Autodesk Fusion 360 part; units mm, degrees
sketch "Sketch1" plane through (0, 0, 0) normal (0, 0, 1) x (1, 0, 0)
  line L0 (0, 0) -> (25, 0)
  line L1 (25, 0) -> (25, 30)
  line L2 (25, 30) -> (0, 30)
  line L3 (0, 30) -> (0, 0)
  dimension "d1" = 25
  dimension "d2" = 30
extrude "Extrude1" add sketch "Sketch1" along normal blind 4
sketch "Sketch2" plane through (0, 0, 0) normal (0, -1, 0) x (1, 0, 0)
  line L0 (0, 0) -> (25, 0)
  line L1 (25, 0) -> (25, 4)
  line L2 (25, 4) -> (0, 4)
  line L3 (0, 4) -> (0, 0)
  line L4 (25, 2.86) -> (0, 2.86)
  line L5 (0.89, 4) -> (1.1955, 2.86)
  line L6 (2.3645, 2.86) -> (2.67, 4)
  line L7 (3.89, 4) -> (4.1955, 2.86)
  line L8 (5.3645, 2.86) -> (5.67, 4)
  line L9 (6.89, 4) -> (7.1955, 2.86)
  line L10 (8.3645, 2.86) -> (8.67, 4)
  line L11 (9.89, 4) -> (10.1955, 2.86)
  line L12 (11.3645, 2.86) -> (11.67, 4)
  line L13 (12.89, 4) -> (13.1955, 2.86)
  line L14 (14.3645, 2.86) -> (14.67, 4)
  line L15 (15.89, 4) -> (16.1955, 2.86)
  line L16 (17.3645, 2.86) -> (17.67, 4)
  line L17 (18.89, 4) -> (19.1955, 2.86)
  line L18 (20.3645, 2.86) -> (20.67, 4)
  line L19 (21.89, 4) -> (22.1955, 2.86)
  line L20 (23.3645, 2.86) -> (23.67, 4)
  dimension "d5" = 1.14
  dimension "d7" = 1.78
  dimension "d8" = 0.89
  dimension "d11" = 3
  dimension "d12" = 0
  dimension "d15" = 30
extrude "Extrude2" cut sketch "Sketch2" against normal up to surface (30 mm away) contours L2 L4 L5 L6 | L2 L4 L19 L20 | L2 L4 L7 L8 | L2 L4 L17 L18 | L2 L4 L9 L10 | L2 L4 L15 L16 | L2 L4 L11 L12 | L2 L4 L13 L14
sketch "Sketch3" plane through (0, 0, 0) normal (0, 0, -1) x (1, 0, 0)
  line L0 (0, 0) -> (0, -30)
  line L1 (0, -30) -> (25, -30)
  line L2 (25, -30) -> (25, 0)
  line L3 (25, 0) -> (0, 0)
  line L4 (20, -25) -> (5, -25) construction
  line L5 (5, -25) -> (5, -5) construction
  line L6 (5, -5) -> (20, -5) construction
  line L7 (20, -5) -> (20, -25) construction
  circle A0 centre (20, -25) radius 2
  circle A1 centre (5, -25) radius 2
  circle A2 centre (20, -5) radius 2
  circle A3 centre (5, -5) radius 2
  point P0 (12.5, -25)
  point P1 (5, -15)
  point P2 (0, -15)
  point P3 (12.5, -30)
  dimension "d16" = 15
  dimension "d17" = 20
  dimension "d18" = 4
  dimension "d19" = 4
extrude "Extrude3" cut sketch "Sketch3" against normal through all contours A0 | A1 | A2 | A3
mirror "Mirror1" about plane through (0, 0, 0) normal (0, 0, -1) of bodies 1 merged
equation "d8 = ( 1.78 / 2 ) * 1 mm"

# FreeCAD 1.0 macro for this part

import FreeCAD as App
import Part
import Sketcher
from FreeCAD import Vector
Q = App.Units.Quantity

doc = App.newDocument("Part")
body = doc.addObject("PartDesign::Body", "Body")

sketch1 = doc.addObject("Sketcher::SketchObject", "Sketch")
body.addObject(sketch1)
sketch1.AttachmentSupport = (doc.XY_Plane, [""])
sketch1.MapMode = "FlatFace"
sketch1.addGeometry(Part.LineSegment(Vector(0, 30, 0), Vector(0, 0, 0)), False)
sketch1.addGeometry(Part.LineSegment(Vector(0, 0, 0), Vector(25, 0, 0)), False)
sketch1.addGeometry(Part.LineSegment(Vector(25, 0, 0), Vector(25, 30, 0)), False)
sketch1.addGeometry(Part.LineSegment(Vector(25, 30, 0), Vector(0, 30, 0)), False)
sketch1.addConstraint(Sketcher.Constraint("Coincident", 0, 2, 1, 1))
sketch1.addConstraint(Sketcher.Constraint("Coincident", 1, 2, 2, 1))
sketch1.addConstraint(Sketcher.Constraint("Coincident", 2, 2, 3, 1))
sketch1.addConstraint(Sketcher.Constraint("Coincident", 3, 2, 0, 1))
sketch1.addConstraint(Sketcher.Constraint("Vertical", 0))
sketch1.addConstraint(Sketcher.Constraint("Horizontal", 1))
sketch1.addConstraint(Sketcher.Constraint("Vertical", 2))
sketch1.addConstraint(Sketcher.Constraint("Horizontal", 3))
sketch1.addConstraint(Sketcher.Constraint("Coincident", 0, 2, -1, 1))
sketch1.addConstraint(Sketcher.Constraint("DistanceX", 1, 1, 1, 2, Q("25 mm")))
sketch1.addConstraint(Sketcher.Constraint("DistanceY", 0, 2, 0, 1, Q("30 mm")))
pad1 = doc.addObject("PartDesign::Pad", "Pad")
body.addObject(pad1)
pad1.Profile = sketch1
pad1.Length = 4

sketch2 = doc.addObject("Sketcher::SketchObject", "Sketch001")
body.addObject(sketch2)
sketch2.AttachmentSupport = (doc.XZ_Plane, [""])
sketch2.MapMode = "FlatFace"
sketch2.addGeometry(Part.LineSegment(Vector(0.9, 4, 0), Vector(1.2, 2.9, 0)), False)
sketch2.addGeometry(Part.LineSegment(Vector(1.2, 2.9, 0), Vector(2.4, 2.9, 0)), False)
sketch2.addGeometry(Part.LineSegment(Vector(2.4, 2.9, 0), Vector(2.7, 4, 0)), False)
sketch2.addGeometry(Part.LineSegment(Vector(2.7, 4, 0), Vector(0.9, 4, 0)), False)
sketch2.addGeometry(Part.LineSegment(Vector(22.2, 2.9, 0), Vector(23.4, 2.9, 0)), False)
sketch2.addGeometry(Part.LineSegment(Vector(23.4, 2.9, 0), Vector(23.7, 4, 0)), False)
sketch2.addGeometry(Part.LineSegment(Vector(23.7, 4, 0), Vector(21.9, 4, 0)), False)
sketch2.addGeometry(Part.LineSegment(Vector(21.9, 4, 0), Vector(22.2, 2.9, 0)), False)
sketch2.addGeometry(Part.LineSegment(Vector(3.9, 4, 0), Vector(4.2, 2.9, 0)), False)
sketch2.addGeometry(Part.LineSegment(Vector(4.2, 2.9, 0), Vector(5.4, 2.9, 0)), False)
sketch2.addGeometry(Part.LineSegment(Vector(5.4, 2.9, 0), Vector(5.7, 4, 0)), False)
sketch2.addGeometry(Part.LineSegment(Vector(5.7, 4, 0), Vector(3.9, 4, 0)), False)
sketch2.addGeometry(Part.LineSegment(Vector(19.2, 2.9, 0), Vector(20.4, 2.9, 0)), False)
sketch2.addGeometry(Part.LineSegment(Vector(20.4, 2.9, 0), Vector(20.7, 4, 0)), False)
sketch2.addGeometry(Part.LineSegment(Vector(20.7, 4, 0), Vector(18.9, 4, 0)), False)
sketch2.addGeometry(Part.LineSegment(Vector(18.9, 4, 0), Vector(19.2, 2.9, 0)), False)
sketch2.addGeometry(Part.LineSegment(Vector(6.9, 4, 0), Vector(7.2, 2.9, 0)), False)
sketch2.addGeometry(Part.LineSegment(Vector(7.2, 2.9, 0), Vector(8.4, 2.9, 0)), False)
sketch2.addGeometry(Part.LineSegment(Vector(8.4, 2.9, 0), Vector(8.7, 4, 0)), False)
sketch2.addGeometry(Part.LineSegment(Vector(8.7, 4, 0), Vector(6.9, 4, 0)), False)
sketch2.addGeometry(Part.LineSegment(Vector(16.2, 2.9, 0), Vector(17.4, 2.9, 0)), False)
sketch2.addGeometry(Part.LineSegment(Vector(17.4, 2.9, 0), Vector(17.7, 4, 0)), False)
sketch2.addGeometry(Part.LineSegment(Vector(17.7, 4, 0), Vector(15.9, 4, 0)), False)
sketch2.addGeometry(Part.LineSegment(Vector(15.9, 4, 0), Vector(16.2, 2.9, 0)), False)
sketch2.addGeometry(Part.LineSegment(Vector(9.9, 4, 0), Vector(10.2, 2.9, 0)), False)
sketch2.addGeometry(Part.LineSegment(Vector(10.2, 2.9, 0), Vector(11.4, 2.9, 0)), False)
sketch2.addGeometry(Part.LineSegment(Vector(11.4, 2.9, 0), Vector(11.7, 4, 0)), False)
sketch2.addGeometry(Part.LineSegment(Vector(11.7, 4, 0), Vector(9.9, 4, 0)), False)
sketch2.addGeometry(Part.LineSegment(Vector(13.2, 2.9, 0), Vector(14.4, 2.9, 0)), False)
sketch2.addGeometry(Part.LineSegment(Vector(14.4, 2.9, 0), Vector(14.7, 4, 0)), False)
sketch2.addGeometry(Part.LineSegment(Vector(14.7, 4, 0), Vector(12.9, 4, 0)), False)
sketch2.addGeometry(Part.LineSegment(Vector(12.9, 4, 0), Vector(13.2, 2.9, 0)), False)
sketch2.addConstraint(Sketcher.Constraint("Coincident", 0, 2, 1, 1))
sketch2.addConstraint(Sketcher.Constraint("Coincident", 1, 2, 2, 1))
sketch2.addConstraint(Sketcher.Constraint("Coincident", 2, 2, 3, 1))
sketch2.addConstraint(Sketcher.Constraint("Coincident", 3, 2, 0, 1))
sketch2.addConstraint(Sketcher.Constraint("Coincident", 4, 2, 5, 1))
sketch2.addConstraint(Sketcher.Constraint("Coincident", 5, 2, 6, 1))
sketch2.addConstraint(Sketcher.Constraint("Coincident", 6, 2, 7, 1))
sketch2.addConstraint(Sketcher.Constraint("Coincident", 7, 2, 4, 1))
sketch2.addConstraint(Sketcher.Constraint("Coincident", 8, 2, 9, 1))
sketch2.addConstraint(Sketcher.Constraint("Coincident", 9, 2, 10, 1))
sketch2.addConstraint(Sketcher.Constraint("Coincident", 10, 2, 11, 1))
sketch2.addConstraint(Sketcher.Constraint("Coincident", 11, 2, 8, 1))
sketch2.addConstraint(Sketcher.Constraint("Coincident", 12, 2, 13, 1))
sketch2.addConstraint(Sketcher.Constraint("Coincident", 13, 2, 14, 1))
sketch2.addConstraint(Sketcher.Constraint("Coincident", 14, 2, 15, 1))
sketch2.addConstraint(Sketcher.Constraint("Coincident", 15, 2, 12, 1))
sketch2.addConstraint(Sketcher.Constraint("Coincident", 16, 2, 17, 1))
sketch2.addConstraint(Sketcher.Constraint("Coincident", 17, 2, 18, 1))
sketch2.addConstraint(Sketcher.Constraint("Coincident", 18, 2, 19, 1))
sketch2.addConstraint(Sketcher.Constraint("Coincident", 19, 2, 16, 1))
sketch2.addConstraint(Sketcher.Constraint("Coincident", 20, 2, 21, 1))
sketch2.addConstraint(Sketcher.Constraint("Coincident", 21, 2, 22, 1))
sketch2.addConstraint(Sketcher.Constraint("Coincident", 22, 2, 23, 1))
sketch2.addConstraint(Sketcher.Constraint("Coincident", 23, 2, 20, 1))
sketch2.addConstraint(Sketcher.Constraint("Coincident", 24, 2, 25, 1))
sketch2.addConstraint(Sketcher.Constraint("Coincident", 25, 2, 26, 1))
sketch2.addConstraint(Sketcher.Constraint("Coincident", 26, 2, 27, 1))
sketch2.addConstraint(Sketcher.Constraint("Coincident", 27, 2, 24, 1))
sketch2.addConstraint(Sketcher.Constraint("Coincident", 28, 2, 29, 1))
sketch2.addConstraint(Sketcher.Constraint("Coincident", 29, 2, 30, 1))
sketch2.addConstraint(Sketcher.Constraint("Coincident", 30, 2, 31, 1))
sketch2.addConstraint(Sketcher.Constraint("Coincident", 31, 2, 28, 1))
sketch2.addConstraint(Sketcher.Constraint("Horizontal", 1))
sketch2.addConstraint(Sketcher.Constraint("Horizontal", 3))
sketch2.addConstraint(Sketcher.Constraint("Horizontal", 4))
sketch2.addConstraint(Sketcher.Constraint("Horizontal", 6))
sketch2.addConstraint(Sketcher.Constraint("Horizontal", 9))
sketch2.addConstraint(Sketcher.Constraint("Horizontal", 11))
sketch2.addConstraint(Sketcher.Constraint("Horizontal", 12))
sketch2.addConstraint(Sketcher.Constraint("Horizontal", 14))
sketch2.addConstraint(Sketcher.Constraint("Horizontal", 17))
sketch2.addConstraint(Sketcher.Constraint("Horizontal", 19))
sketch2.addConstraint(Sketcher.Constraint("Horizontal", 20))
sketch2.addConstraint(Sketcher.Constraint("Horizontal", 22))
sketch2.addConstraint(Sketcher.Constraint("Horizontal", 25))
sketch2.addConstraint(Sketcher.Constraint("Horizontal", 27))
sketch2.addConstraint(Sketcher.Constraint("Horizontal", 28))
sketch2.addConstraint(Sketcher.Constraint("Horizontal", 30))
sketch2.addConstraint(Sketcher.Constraint("Parallel", 2, 5))
sketch2.addConstraint(Sketcher.Constraint("Parallel", 0, 7))
sketch2.addConstraint(Sketcher.Constraint("Parallel", 7, 8))
sketch2.addConstraint(Sketcher.Constraint("Parallel", 5, 10))
sketch2.addConstraint(Sketcher.Constraint("Parallel", 10, 13))
sketch2.addConstraint(Sketcher.Constraint("Parallel", 8, 15))
sketch2.addConstraint(Sketcher.Constraint("Parallel", 15, 16))
sketch2.addConstraint(Sketcher.Constraint("Parallel", 13, 18))
sketch2.addConstraint(Sketcher.Constraint("Parallel", 18, 21))
sketch2.addConstraint(Sketcher.Constraint("Parallel", 16, 23))
sketch2.addConstraint(Sketcher.Constraint("Parallel", 23, 24))
sketch2.addConstraint(Sketcher.Constraint("Parallel", 21, 26))
sketch2.addConstraint(Sketcher.Constraint("Parallel", 26, 29))
sketch2.addConstraint(Sketcher.Constraint("Parallel", 24, 31))
sketch2.addConstraint(Sketcher.Constraint("Horizontal", 1, 2, 4, 2))
sketch2.addConstraint(Sketcher.Constraint("Horizontal", 3, 2, 5, 2))
sketch2.addConstraint(Sketcher.Constraint("Horizontal", 7, 2, 8, 2))
sketch2.addConstraint(Sketcher.Constraint("Horizontal", 6, 2, 10, 2))
sketch2.addConstraint(Sketcher.Constraint("Horizontal", 9, 2, 12, 2))
sketch2.addConstraint(Sketcher.Constraint("Horizontal", 11, 2, 13, 2))
sketch2.addConstraint(Sketcher.Constraint("Horizontal", 15, 2, 16, 2))
sketch2.addConstraint(Sketcher.Constraint("Horizontal", 14, 2, 18, 2))
sketch2.addConstraint(Sketcher.Constraint("Horizontal", 17, 2, 20, 2))
sketch2.addConstraint(Sketcher.Constraint("Horizontal", 19, 2, 21, 2))
sketch2.addConstraint(Sketcher.Constraint("Horizontal", 23, 2, 24, 2))
sketch2.addConstraint(Sketcher.Constraint("Horizontal", 22, 2, 26, 2))
sketch2.addConstraint(Sketcher.Constraint("Horizontal", 25, 2, 28, 2))
sketch2.addConstraint(Sketcher.Constraint("Horizontal", 27, 2, 29, 2))
sketch2.addConstraint(Sketcher.Constraint("Equal", 1, 4))
sketch2.addConstraint(Sketcher.Constraint("Equal", 4, 9))
sketch2.addConstraint(Sketcher.Constraint("Equal", 9, 12))
sketch2.addConstraint(Sketcher.Constraint("Equal", 12, 17))
sketch2.addConstraint(Sketcher.Constraint("Equal", 17, 20))
sketch2.addConstraint(Sketcher.Constraint("Equal", 20, 25))
sketch2.addConstraint(Sketcher.Constraint("Equal", 25, 28))
sketch2.addConstraint(Sketcher.Constraint("Equal", 0, 2))
sketch2.addConstraint(Sketcher.Constraint("DistanceX", 0, 2, 8, 2, Q("3 mm")))
sketch2.addConstraint(Sketcher.Constraint("DistanceX", 12, 2, 4, 2, Q("3 mm")))
sketch2.addConstraint(Sketcher.Constraint("DistanceX", 8, 2, 16, 2, Q("3 mm")))
sketch2.addConstraint(Sketcher.Constraint("DistanceX", 20, 2, 12, 2, Q("3 mm")))
sketch2.addConstraint(Sketcher.Constraint("DistanceX", 16, 2, 24, 2, Q("3 mm")))
sketch2.addConstraint(Sketcher.Constraint("DistanceX", 28, 2, 20, 2, Q("3 mm")))
sketch2.addConstraint(Sketcher.Constraint("DistanceX", 25, 2, 28, 2, Q("3 mm")))
sketch2.addConstraint(Sketcher.Constraint("DistanceX", 3, 2, 3, 1, Q("1.78 mm")))
sketch2.addConstraint(Sketcher.Constraint("DistanceX", -1, 1, 3, 2, Q("0.89 mm")))
sketch2.addConstraint(Sketcher.Constraint("DistanceY", 1, 2, 2, 2, Q("1.14 mm")))
sketch2.addConstraint(Sketcher.Constraint("DistanceY", -1, 1, 2, 2, Q("4 mm")))
sketch2.addConstraint(Sketcher.Constraint("DistanceX", 1, 1, 1, 2, Q("1.169 mm")))
pocket1 = doc.addObject("PartDesign::Pocket", "Pocket")
body.addObject(pocket1)
pocket1.Profile = sketch2
pocket1.Length = 30

sketch3 = doc.addObject("Sketcher::SketchObject", "Sketch002")
body.addObject(sketch3)
sketch3.AttachmentSupport = (doc.XY_Plane, [""])
sketch3.MapMode = "FlatFace"
sketch3.addGeometry(Part.Circle(Vector(20, 25, 0), Vector(0, 0, 1), 2), False)
sketch3.addGeometry(Part.Circle(Vector(5, 25, 0), Vector(0, 0, 1), 2), False)
sketch3.addGeometry(Part.Circle(Vector(20, 5, 0), Vector(0, 0, 1), 2), False)
sketch3.addGeometry(Part.Circle(Vector(5, 5, 0), Vector(0, 0, 1), 2), False)
sketch3.addConstraint(Sketcher.Constraint("Equal", 0, 1))
sketch3.addConstraint(Sketcher.Constraint("Equal", 1, 2))
sketch3.addConstraint(Sketcher.Constraint("Equal", 2, 3))
sketch3.addConstraint(Sketcher.Constraint("Horizontal", 0, 3, 1, 3))
sketch3.addConstraint(Sketcher.Constraint("Horizontal", 2, 3, 3, 3))
sketch3.addConstraint(Sketcher.Constraint("Vertical", 0, 3, 2, 3))
sketch3.addConstraint(Sketcher.Constraint("Vertical", 1, 3, 3, 3))
sketch3.addConstraint(Sketcher.Constraint("Diameter", 0, Q("4 mm")))
sketch3.addConstraint(Sketcher.Constraint("DistanceX", -1, 1, 0, 3, Q("20 mm")))
sketch3.addConstraint(Sketcher.Constraint("DistanceX", 1, 3, 0, 3, Q("15 mm")))
sketch3.addConstraint(Sketcher.Constraint("DistanceY", 2, 3, 0, 3, Q("20 mm")))
sketch3.addConstraint(Sketcher.Constraint("DistanceY", -1, 1, 0, 3, Q("25 mm")))
pocket2 = doc.addObject("PartDesign::Pocket", "Pocket001")
body.addObject(pocket2)
pocket2.Profile = sketch3
pocket2.Type = "ThroughAll"
pocket2.Reversed = True
doc.recompute()

mirrored = doc.addObject("PartDesign::Mirrored", "Mirrored")
body.addObject(mirrored)
mirrored.TransformMode = "Transform body"
mirrored.MirrorPlane = (doc.XY_Plane, [""])
body.Tip = mirrored

doc.recompute()
